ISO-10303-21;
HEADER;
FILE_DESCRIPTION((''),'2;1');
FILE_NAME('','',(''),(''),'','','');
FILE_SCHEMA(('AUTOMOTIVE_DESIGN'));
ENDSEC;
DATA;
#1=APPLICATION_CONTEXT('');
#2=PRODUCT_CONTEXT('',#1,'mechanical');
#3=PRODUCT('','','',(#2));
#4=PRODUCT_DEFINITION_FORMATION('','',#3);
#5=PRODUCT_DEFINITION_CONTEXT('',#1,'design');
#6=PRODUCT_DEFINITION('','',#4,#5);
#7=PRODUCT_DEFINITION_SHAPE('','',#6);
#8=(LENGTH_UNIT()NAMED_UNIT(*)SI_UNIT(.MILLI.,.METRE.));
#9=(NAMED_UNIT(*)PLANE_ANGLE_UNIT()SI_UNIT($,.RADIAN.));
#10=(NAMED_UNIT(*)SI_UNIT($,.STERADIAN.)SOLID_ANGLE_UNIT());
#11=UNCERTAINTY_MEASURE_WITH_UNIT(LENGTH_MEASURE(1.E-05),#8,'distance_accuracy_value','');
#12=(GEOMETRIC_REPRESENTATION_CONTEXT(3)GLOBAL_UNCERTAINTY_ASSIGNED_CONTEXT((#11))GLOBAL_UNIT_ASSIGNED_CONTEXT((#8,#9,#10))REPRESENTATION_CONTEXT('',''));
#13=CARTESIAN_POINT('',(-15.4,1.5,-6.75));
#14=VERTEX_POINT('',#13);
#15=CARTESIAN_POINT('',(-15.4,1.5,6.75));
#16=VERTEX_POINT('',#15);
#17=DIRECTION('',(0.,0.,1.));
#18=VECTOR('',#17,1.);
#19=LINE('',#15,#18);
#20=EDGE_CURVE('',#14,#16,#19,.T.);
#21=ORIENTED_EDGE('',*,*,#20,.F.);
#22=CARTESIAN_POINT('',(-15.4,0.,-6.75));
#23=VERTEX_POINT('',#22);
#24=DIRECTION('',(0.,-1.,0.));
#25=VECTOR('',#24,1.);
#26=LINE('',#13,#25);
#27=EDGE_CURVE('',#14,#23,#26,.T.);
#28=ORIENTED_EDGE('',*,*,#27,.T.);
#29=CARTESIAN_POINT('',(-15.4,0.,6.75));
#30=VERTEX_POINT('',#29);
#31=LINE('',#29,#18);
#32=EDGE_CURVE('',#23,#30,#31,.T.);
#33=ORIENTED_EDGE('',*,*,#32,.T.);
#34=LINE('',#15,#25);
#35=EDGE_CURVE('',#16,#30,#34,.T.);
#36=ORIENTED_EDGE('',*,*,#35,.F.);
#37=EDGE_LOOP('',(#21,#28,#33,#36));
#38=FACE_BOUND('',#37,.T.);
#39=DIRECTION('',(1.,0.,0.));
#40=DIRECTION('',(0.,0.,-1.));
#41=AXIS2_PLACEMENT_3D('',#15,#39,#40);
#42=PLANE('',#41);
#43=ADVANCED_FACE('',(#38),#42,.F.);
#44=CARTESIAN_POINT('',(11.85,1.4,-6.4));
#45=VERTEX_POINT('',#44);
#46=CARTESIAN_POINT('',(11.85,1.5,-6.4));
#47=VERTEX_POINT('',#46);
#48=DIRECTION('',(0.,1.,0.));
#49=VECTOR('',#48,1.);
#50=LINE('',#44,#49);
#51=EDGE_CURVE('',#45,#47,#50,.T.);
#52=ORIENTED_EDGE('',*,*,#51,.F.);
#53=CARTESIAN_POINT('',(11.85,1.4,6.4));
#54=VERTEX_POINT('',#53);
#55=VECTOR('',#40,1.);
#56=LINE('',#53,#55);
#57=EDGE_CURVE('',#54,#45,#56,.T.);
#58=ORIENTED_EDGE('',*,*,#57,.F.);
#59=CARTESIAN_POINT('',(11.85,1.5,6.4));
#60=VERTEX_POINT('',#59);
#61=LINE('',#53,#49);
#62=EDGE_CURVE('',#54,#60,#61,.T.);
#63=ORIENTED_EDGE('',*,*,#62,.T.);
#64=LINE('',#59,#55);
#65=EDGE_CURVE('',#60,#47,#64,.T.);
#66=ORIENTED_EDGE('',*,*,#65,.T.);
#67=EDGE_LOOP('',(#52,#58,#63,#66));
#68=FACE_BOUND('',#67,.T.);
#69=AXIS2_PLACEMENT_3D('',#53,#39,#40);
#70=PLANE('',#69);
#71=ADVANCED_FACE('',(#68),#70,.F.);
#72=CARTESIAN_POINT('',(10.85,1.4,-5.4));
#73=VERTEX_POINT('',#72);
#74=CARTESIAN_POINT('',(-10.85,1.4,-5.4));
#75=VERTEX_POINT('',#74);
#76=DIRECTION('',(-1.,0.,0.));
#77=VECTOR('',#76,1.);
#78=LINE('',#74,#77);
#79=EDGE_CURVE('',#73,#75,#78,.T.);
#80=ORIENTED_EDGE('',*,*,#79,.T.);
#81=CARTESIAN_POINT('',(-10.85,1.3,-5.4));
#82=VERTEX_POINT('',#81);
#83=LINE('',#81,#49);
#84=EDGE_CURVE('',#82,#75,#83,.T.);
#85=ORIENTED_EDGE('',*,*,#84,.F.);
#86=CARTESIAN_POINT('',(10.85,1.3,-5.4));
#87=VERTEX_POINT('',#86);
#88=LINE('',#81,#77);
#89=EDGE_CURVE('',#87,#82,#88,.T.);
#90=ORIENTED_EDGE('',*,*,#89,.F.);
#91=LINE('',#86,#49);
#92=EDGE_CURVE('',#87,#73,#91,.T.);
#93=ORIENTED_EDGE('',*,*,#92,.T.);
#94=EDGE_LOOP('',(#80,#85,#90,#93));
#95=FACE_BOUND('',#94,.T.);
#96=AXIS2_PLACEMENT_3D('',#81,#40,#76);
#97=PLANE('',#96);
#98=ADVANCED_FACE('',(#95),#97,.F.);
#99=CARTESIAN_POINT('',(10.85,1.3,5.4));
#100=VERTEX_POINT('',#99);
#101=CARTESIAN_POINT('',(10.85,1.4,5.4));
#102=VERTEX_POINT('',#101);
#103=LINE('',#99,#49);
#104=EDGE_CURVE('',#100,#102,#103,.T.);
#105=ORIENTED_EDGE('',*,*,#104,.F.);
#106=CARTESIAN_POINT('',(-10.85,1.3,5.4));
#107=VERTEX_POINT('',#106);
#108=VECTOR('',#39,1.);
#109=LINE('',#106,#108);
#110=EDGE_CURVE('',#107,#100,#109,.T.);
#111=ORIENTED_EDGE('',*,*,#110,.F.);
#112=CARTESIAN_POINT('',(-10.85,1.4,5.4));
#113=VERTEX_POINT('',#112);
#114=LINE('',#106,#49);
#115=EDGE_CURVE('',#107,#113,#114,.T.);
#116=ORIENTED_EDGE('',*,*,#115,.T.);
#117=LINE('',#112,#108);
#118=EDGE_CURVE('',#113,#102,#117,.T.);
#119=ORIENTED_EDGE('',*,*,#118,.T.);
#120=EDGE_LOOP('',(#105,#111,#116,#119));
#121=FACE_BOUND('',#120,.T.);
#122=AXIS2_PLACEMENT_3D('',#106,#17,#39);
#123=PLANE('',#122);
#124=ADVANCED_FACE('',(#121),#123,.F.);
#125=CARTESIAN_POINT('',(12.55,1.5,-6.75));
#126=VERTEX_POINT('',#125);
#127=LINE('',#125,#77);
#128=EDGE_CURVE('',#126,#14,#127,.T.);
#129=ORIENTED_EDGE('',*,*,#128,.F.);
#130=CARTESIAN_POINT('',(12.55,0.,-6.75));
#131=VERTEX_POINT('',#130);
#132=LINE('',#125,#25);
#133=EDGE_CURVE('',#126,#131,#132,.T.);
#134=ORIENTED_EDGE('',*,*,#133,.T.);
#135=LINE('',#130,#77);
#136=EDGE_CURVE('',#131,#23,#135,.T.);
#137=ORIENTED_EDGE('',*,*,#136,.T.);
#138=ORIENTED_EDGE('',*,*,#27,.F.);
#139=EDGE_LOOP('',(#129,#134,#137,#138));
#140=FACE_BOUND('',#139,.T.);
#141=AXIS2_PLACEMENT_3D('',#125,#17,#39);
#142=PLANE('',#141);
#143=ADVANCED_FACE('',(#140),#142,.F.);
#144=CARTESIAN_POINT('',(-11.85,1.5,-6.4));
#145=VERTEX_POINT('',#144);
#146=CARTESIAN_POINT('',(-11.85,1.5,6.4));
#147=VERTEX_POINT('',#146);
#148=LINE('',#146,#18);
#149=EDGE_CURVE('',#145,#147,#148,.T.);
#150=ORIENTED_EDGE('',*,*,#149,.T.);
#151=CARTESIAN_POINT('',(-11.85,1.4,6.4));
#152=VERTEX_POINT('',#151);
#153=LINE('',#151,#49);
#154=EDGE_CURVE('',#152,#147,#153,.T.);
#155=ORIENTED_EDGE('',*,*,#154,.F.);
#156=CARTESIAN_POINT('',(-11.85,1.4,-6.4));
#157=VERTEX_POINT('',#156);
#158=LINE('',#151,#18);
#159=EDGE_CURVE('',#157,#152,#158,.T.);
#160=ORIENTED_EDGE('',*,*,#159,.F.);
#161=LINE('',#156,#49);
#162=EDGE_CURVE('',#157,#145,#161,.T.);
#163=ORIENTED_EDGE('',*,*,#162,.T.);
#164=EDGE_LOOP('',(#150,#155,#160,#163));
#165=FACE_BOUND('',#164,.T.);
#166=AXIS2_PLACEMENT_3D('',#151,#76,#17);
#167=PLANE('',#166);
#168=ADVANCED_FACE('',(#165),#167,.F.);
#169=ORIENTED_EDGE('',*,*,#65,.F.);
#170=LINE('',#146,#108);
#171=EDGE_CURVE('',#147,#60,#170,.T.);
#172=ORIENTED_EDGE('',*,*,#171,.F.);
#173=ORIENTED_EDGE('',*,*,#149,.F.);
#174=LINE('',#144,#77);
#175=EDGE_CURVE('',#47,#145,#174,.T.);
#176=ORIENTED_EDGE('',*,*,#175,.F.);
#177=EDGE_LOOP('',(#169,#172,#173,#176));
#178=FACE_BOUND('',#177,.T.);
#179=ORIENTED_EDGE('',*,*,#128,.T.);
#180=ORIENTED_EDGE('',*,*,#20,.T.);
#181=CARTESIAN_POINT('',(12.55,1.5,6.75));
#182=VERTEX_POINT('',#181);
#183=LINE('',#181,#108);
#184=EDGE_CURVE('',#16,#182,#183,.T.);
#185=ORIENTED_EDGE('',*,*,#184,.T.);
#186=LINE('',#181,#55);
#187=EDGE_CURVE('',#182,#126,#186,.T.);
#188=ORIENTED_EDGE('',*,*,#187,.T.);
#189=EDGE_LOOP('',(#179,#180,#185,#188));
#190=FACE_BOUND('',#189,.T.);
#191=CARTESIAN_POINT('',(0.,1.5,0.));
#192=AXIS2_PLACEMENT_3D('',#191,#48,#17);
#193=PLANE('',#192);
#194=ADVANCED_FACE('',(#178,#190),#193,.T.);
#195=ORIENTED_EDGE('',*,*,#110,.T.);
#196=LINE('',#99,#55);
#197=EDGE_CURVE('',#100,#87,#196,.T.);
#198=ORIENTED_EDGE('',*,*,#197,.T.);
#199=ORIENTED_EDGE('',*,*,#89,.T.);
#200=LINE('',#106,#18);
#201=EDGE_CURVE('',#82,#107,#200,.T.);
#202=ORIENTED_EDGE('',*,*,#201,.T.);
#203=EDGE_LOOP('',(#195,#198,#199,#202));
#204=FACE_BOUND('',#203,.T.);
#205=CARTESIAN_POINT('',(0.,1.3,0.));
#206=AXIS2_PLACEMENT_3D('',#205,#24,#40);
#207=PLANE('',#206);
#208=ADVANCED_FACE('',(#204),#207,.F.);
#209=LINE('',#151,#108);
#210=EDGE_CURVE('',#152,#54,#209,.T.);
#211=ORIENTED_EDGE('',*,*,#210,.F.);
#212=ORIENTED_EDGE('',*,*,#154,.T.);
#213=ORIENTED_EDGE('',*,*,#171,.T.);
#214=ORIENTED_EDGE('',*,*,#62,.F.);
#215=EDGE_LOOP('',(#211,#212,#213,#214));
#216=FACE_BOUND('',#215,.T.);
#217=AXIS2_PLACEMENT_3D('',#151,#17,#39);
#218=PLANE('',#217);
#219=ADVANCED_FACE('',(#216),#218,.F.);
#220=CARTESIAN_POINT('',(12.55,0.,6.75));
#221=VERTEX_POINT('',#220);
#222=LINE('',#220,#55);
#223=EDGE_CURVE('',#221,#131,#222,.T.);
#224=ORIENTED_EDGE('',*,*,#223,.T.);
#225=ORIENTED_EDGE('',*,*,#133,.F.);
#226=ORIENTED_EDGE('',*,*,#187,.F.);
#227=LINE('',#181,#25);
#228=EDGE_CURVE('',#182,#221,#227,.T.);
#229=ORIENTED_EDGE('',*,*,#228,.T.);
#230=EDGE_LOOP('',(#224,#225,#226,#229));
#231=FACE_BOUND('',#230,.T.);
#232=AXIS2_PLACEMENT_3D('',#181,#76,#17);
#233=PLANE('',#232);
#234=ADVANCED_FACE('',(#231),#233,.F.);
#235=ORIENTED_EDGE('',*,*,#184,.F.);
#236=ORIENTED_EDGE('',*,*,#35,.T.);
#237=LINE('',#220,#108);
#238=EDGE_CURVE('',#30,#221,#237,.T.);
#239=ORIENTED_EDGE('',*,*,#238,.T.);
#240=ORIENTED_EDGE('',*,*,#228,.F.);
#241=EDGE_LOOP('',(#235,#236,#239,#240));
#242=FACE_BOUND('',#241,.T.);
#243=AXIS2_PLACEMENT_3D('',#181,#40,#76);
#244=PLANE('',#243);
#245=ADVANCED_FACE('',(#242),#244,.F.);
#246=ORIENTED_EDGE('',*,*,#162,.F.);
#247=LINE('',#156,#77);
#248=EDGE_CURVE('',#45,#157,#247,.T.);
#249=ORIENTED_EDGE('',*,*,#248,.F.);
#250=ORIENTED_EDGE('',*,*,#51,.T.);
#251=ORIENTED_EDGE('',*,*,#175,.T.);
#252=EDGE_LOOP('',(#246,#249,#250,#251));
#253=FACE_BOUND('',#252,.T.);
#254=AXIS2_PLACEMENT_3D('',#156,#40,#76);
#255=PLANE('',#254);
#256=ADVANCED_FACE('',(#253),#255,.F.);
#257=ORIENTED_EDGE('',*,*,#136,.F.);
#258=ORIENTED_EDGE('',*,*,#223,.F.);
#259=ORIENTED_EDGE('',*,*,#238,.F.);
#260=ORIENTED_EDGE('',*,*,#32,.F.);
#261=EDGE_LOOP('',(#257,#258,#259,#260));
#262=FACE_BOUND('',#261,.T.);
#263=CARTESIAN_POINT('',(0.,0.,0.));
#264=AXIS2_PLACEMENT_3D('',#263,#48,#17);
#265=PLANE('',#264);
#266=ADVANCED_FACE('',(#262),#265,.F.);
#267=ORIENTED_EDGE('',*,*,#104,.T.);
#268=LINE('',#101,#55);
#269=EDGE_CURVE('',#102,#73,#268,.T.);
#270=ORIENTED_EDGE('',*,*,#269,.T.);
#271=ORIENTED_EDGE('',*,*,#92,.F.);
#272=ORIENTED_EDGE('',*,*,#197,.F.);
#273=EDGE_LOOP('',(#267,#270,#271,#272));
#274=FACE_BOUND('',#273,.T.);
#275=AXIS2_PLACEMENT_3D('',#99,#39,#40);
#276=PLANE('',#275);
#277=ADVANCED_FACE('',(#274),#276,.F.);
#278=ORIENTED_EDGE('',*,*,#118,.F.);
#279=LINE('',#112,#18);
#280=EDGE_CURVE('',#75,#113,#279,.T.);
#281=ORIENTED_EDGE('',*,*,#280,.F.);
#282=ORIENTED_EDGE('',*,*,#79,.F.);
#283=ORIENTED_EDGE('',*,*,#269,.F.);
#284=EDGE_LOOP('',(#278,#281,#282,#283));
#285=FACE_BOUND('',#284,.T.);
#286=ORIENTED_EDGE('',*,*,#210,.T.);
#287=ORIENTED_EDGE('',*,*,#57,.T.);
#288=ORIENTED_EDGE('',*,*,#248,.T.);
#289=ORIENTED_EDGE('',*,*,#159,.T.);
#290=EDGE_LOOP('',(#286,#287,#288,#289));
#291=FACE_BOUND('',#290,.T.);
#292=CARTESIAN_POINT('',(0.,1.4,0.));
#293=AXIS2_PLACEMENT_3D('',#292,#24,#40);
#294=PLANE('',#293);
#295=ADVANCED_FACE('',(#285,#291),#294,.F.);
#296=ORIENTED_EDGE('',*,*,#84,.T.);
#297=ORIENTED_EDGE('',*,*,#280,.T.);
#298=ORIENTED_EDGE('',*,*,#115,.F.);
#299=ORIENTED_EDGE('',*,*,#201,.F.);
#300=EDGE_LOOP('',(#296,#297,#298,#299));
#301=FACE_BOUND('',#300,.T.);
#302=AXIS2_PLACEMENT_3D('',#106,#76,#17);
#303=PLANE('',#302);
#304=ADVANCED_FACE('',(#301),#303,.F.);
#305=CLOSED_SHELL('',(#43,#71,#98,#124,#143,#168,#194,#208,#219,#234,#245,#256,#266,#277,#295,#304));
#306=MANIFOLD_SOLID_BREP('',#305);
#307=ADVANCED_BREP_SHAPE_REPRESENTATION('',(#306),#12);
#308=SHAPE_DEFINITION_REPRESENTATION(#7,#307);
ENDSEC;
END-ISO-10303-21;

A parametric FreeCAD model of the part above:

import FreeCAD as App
import Part
import Sketcher
from FreeCAD import Vector

doc = App.newDocument("Part")
body = doc.addObject("PartDesign::Body", "Body")

sketch1 = body.newObject("Sketcher::SketchObject", "Sketch")
sketch1.AttachmentSupport = (doc.getObject("XZ_Plane"), [""])
sketch1.MapMode = "FlatFace"
sketch1.addGeometry(Part.LineSegment(Vector(-15, -7, 0), Vector(-15, 7, 0)), False)
sketch1.addGeometry(Part.LineSegment(Vector(-15, 7, 0), Vector(13, 7, 0)), False)
sketch1.addGeometry(Part.LineSegment(Vector(13, 7, 0), Vector(13, -7, 0)), False)
sketch1.addGeometry(Part.LineSegment(Vector(13, -7, 0), Vector(-15, -7, 0)), False)
sketch1.addConstraint(Sketcher.Constraint("Coincident", 0, 2, 1, 1))
sketch1.addConstraint(Sketcher.Constraint("Coincident", 1, 2, 2, 1))
sketch1.addConstraint(Sketcher.Constraint("Coincident", 2, 2, 3, 1))
sketch1.addConstraint(Sketcher.Constraint("Coincident", 3, 2, 0, 1))
sketch1.addConstraint(Sketcher.Constraint("Vertical", 0))
sketch1.addConstraint(Sketcher.Constraint("Horizontal", 1))
sketch1.addConstraint(Sketcher.Constraint("Vertical", 2))
sketch1.addConstraint(Sketcher.Constraint("Horizontal", 3))
sketch1.addConstraint(Sketcher.Constraint("DistanceY", 0, 1, 0, 2, 13.5))
sketch1.addConstraint(Sketcher.Constraint("DistanceX", 1, 1, 1, 2, 27.95))
sketch1.addConstraint(Sketcher.Constraint("DistanceX", 0, 2, -1, 1, 15.4))
sketch1.addConstraint(Sketcher.Constraint("DistanceY", -1, 1, 0, 2, 6.75))
pad1 = body.newObject("PartDesign::Pad", "Pad")
pad1.Profile = sketch1
pad1.Length = 1.5
pad1.Reversed = True

sketch2 = body.newObject("Sketcher::SketchObject", "Sketch001")
sketch2.AttachmentSupport = (doc.getObject("XZ_Plane"), [""])
sketch2.MapMode = "FlatFace"
sketch2.AttachmentOffset = App.Placement(Vector(0, 0, -1.5), App.Rotation())
sketch2.addGeometry(Part.LineSegment(Vector(-11, -5, 0), Vector(-11, 5, 0)), False)
sketch2.addGeometry(Part.LineSegment(Vector(-11, 5, 0), Vector(11, 5, 0)), False)
sketch2.addGeometry(Part.LineSegment(Vector(11, 5, 0), Vector(11, -5, 0)), False)
sketch2.addGeometry(Part.LineSegment(Vector(11, -5, 0), Vector(-11, -5, 0)), False)
sketch2.addConstraint(Sketcher.Constraint("Coincident", 0, 2, 1, 1))
sketch2.addConstraint(Sketcher.Constraint("Coincident", 1, 2, 2, 1))
sketch2.addConstraint(Sketcher.Constraint("Coincident", 2, 2, 3, 1))
sketch2.addConstraint(Sketcher.Constraint("Coincident", 3, 2, 0, 1))
sketch2.addConstraint(Sketcher.Constraint("Vertical", 0))
sketch2.addConstraint(Sketcher.Constraint("Horizontal", 1))
sketch2.addConstraint(Sketcher.Constraint("Vertical", 2))
sketch2.addConstraint(Sketcher.Constraint("Horizontal", 3))
sketch2.addConstraint(Sketcher.Constraint("Symmetric", 0, 2, 2, 2, -1, 1))
sketch2.addConstraint(Sketcher.Constraint("DistanceX", 1, 1, 1, 2, 21.7))
sketch2.addConstraint(Sketcher.Constraint("DistanceY", 0, 1, 0, 2, 10.8))
pocket1 = body.newObject("PartDesign::Pocket", "Pocket")
pocket1.Profile = sketch2
pocket1.Length = 0.2
pocket1.Reversed = True

sketch3 = body.newObject("Sketcher::SketchObject", "Sketch002")
sketch3.AttachmentSupport = (doc.getObject("XZ_Plane"), [""])
sketch3.MapMode = "FlatFace"
sketch3.AttachmentOffset = App.Placement(Vector(0, 0, -1.5), App.Rotation())
sketch3.addGeometry(Part.LineSegment(Vector(-12, -6, 0), Vector(-12, 6, 0)), False)
sketch3.addGeometry(Part.LineSegment(Vector(-12, 6, 0), Vector(12, 6, 0)), False)
sketch3.addGeometry(Part.LineSegment(Vector(12, 6, 0), Vector(12, -6, 0)), False)
sketch3.addGeometry(Part.LineSegment(Vector(12, -6, 0), Vector(-12, -6, 0)), False)
sketch3.addConstraint(Sketcher.Constraint("Coincident", 0, 2, 1, 1))
sketch3.addConstraint(Sketcher.Constraint("Coincident", 1, 2, 2, 1))
sketch3.addConstraint(Sketcher.Constraint("Coincident", 2, 2, 3, 1))
sketch3.addConstraint(Sketcher.Constraint("Coincident", 3, 2, 0, 1))
sketch3.addConstraint(Sketcher.Constraint("Vertical", 0))
sketch3.addConstraint(Sketcher.Constraint("Horizontal", 1))
sketch3.addConstraint(Sketcher.Constraint("Vertical", 2))
sketch3.addConstraint(Sketcher.Constraint("Horizontal", 3))
sketch3.addConstraint(Sketcher.Constraint("Symmetric", 0, 2, 2, 2, -1, 1))
sketch3.addConstraint(Sketcher.Constraint("DistanceX", 1, 1, 1, 2, 23.7))
sketch3.addConstraint(Sketcher.Constraint("DistanceY", 0, 1, 0, 2, 12.8))
pocket2 = body.newObject("PartDesign::Pocket", "Pocket001")
pocket2.Profile = sketch3
pocket2.Length = 0.1
pocket2.Reversed = True

doc.recompute()
